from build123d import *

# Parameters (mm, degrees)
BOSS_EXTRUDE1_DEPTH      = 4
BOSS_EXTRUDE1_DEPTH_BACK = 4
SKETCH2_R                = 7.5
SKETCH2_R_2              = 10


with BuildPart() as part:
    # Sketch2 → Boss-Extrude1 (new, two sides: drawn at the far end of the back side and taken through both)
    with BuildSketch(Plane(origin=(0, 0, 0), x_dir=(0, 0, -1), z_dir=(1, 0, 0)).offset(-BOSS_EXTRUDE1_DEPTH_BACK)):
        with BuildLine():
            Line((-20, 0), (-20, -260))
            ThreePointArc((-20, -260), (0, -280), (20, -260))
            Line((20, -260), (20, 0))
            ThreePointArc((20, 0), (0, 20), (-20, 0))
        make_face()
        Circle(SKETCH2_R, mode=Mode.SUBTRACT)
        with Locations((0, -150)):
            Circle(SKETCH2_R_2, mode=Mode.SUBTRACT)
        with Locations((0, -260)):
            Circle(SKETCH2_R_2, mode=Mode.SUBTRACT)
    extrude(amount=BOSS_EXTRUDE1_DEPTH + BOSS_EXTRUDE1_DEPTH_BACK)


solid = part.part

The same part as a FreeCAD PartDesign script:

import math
import FreeCAD as App
import Part
import Sketcher
from FreeCAD import Vector

doc = App.newDocument("Part")
body = doc.addObject("PartDesign::Body", "Body")

sketch1 = doc.addObject("Sketcher::SketchObject", "Sketch")
body.addObject(sketch1)
sketch1.AttachmentSupport = (doc.YZ_Plane, [""])
sketch1.MapMode = "FlatFace"
sketch1.addGeometry([
    Part.LineSegment(Vector(0, 20, 0), Vector(-260, 20, 0)),
    Part.ArcOfCircle(Part.Circle(Vector(-260, 0, 0), Vector(0, 0, 1), 20), math.radians(90), math.radians(270)),
    Part.LineSegment(Vector(-260, -20, 0), Vector(0, -20, 0)),
    Part.ArcOfCircle(Part.Circle(Vector(0, 0, 0), Vector(0, 0, 1), 20), math.radians(-90), math.radians(90)),
    Part.Circle(Vector(-260, 0, 0), Vector(0, 0, 1), 10),
    Part.Circle(Vector(-150, 0, 0), Vector(0, 0, 1), 10),
    Part.Circle(Vector(0, 0, 0), Vector(0, 0, 1), 8),
], False)
sketch1.addConstraint([
    Sketcher.Constraint("Tangent", 0, 2, 1, 1),
    Sketcher.Constraint("Tangent", 1, 2, 2, 1),
    Sketcher.Constraint("Tangent", 2, 2, 3, 1),
    Sketcher.Constraint("Tangent", 3, 2, 0, 1),
    Sketcher.Constraint("Horizontal", 0),
    Sketcher.Constraint("Horizontal", 2),
    Sketcher.Constraint("Coincident", 3, 3, -1, 1),
    Sketcher.Constraint("Coincident", 6, 3, -1, 1),
    Sketcher.Constraint("Coincident", 4, 3, 1, 3),
    Sketcher.Constraint("Equal", 4, 5),
    Sketcher.Constraint("PointOnObject", 5, 3, -1),
    Sketcher.Constraint("Diameter", 4, 20.0),
    Sketcher.Constraint("Diameter", 6, 15.0),
    Sketcher.Constraint("Radius", 1, 20.0),
    Sketcher.Constraint("DistanceX", 0, 2, 0, 1, 260.0),
    Sketcher.Constraint("DistanceX", 5, 3, -1, 1, 150.0),
])
pad1 = doc.addObject("PartDesign::Pad", "Pad")
body.addObject(pad1)
pad1.Profile = sketch1
pad1.Type = "TwoLengths"
pad1.Length = 4
pad1.Length2 = 4

doc.recompute()
